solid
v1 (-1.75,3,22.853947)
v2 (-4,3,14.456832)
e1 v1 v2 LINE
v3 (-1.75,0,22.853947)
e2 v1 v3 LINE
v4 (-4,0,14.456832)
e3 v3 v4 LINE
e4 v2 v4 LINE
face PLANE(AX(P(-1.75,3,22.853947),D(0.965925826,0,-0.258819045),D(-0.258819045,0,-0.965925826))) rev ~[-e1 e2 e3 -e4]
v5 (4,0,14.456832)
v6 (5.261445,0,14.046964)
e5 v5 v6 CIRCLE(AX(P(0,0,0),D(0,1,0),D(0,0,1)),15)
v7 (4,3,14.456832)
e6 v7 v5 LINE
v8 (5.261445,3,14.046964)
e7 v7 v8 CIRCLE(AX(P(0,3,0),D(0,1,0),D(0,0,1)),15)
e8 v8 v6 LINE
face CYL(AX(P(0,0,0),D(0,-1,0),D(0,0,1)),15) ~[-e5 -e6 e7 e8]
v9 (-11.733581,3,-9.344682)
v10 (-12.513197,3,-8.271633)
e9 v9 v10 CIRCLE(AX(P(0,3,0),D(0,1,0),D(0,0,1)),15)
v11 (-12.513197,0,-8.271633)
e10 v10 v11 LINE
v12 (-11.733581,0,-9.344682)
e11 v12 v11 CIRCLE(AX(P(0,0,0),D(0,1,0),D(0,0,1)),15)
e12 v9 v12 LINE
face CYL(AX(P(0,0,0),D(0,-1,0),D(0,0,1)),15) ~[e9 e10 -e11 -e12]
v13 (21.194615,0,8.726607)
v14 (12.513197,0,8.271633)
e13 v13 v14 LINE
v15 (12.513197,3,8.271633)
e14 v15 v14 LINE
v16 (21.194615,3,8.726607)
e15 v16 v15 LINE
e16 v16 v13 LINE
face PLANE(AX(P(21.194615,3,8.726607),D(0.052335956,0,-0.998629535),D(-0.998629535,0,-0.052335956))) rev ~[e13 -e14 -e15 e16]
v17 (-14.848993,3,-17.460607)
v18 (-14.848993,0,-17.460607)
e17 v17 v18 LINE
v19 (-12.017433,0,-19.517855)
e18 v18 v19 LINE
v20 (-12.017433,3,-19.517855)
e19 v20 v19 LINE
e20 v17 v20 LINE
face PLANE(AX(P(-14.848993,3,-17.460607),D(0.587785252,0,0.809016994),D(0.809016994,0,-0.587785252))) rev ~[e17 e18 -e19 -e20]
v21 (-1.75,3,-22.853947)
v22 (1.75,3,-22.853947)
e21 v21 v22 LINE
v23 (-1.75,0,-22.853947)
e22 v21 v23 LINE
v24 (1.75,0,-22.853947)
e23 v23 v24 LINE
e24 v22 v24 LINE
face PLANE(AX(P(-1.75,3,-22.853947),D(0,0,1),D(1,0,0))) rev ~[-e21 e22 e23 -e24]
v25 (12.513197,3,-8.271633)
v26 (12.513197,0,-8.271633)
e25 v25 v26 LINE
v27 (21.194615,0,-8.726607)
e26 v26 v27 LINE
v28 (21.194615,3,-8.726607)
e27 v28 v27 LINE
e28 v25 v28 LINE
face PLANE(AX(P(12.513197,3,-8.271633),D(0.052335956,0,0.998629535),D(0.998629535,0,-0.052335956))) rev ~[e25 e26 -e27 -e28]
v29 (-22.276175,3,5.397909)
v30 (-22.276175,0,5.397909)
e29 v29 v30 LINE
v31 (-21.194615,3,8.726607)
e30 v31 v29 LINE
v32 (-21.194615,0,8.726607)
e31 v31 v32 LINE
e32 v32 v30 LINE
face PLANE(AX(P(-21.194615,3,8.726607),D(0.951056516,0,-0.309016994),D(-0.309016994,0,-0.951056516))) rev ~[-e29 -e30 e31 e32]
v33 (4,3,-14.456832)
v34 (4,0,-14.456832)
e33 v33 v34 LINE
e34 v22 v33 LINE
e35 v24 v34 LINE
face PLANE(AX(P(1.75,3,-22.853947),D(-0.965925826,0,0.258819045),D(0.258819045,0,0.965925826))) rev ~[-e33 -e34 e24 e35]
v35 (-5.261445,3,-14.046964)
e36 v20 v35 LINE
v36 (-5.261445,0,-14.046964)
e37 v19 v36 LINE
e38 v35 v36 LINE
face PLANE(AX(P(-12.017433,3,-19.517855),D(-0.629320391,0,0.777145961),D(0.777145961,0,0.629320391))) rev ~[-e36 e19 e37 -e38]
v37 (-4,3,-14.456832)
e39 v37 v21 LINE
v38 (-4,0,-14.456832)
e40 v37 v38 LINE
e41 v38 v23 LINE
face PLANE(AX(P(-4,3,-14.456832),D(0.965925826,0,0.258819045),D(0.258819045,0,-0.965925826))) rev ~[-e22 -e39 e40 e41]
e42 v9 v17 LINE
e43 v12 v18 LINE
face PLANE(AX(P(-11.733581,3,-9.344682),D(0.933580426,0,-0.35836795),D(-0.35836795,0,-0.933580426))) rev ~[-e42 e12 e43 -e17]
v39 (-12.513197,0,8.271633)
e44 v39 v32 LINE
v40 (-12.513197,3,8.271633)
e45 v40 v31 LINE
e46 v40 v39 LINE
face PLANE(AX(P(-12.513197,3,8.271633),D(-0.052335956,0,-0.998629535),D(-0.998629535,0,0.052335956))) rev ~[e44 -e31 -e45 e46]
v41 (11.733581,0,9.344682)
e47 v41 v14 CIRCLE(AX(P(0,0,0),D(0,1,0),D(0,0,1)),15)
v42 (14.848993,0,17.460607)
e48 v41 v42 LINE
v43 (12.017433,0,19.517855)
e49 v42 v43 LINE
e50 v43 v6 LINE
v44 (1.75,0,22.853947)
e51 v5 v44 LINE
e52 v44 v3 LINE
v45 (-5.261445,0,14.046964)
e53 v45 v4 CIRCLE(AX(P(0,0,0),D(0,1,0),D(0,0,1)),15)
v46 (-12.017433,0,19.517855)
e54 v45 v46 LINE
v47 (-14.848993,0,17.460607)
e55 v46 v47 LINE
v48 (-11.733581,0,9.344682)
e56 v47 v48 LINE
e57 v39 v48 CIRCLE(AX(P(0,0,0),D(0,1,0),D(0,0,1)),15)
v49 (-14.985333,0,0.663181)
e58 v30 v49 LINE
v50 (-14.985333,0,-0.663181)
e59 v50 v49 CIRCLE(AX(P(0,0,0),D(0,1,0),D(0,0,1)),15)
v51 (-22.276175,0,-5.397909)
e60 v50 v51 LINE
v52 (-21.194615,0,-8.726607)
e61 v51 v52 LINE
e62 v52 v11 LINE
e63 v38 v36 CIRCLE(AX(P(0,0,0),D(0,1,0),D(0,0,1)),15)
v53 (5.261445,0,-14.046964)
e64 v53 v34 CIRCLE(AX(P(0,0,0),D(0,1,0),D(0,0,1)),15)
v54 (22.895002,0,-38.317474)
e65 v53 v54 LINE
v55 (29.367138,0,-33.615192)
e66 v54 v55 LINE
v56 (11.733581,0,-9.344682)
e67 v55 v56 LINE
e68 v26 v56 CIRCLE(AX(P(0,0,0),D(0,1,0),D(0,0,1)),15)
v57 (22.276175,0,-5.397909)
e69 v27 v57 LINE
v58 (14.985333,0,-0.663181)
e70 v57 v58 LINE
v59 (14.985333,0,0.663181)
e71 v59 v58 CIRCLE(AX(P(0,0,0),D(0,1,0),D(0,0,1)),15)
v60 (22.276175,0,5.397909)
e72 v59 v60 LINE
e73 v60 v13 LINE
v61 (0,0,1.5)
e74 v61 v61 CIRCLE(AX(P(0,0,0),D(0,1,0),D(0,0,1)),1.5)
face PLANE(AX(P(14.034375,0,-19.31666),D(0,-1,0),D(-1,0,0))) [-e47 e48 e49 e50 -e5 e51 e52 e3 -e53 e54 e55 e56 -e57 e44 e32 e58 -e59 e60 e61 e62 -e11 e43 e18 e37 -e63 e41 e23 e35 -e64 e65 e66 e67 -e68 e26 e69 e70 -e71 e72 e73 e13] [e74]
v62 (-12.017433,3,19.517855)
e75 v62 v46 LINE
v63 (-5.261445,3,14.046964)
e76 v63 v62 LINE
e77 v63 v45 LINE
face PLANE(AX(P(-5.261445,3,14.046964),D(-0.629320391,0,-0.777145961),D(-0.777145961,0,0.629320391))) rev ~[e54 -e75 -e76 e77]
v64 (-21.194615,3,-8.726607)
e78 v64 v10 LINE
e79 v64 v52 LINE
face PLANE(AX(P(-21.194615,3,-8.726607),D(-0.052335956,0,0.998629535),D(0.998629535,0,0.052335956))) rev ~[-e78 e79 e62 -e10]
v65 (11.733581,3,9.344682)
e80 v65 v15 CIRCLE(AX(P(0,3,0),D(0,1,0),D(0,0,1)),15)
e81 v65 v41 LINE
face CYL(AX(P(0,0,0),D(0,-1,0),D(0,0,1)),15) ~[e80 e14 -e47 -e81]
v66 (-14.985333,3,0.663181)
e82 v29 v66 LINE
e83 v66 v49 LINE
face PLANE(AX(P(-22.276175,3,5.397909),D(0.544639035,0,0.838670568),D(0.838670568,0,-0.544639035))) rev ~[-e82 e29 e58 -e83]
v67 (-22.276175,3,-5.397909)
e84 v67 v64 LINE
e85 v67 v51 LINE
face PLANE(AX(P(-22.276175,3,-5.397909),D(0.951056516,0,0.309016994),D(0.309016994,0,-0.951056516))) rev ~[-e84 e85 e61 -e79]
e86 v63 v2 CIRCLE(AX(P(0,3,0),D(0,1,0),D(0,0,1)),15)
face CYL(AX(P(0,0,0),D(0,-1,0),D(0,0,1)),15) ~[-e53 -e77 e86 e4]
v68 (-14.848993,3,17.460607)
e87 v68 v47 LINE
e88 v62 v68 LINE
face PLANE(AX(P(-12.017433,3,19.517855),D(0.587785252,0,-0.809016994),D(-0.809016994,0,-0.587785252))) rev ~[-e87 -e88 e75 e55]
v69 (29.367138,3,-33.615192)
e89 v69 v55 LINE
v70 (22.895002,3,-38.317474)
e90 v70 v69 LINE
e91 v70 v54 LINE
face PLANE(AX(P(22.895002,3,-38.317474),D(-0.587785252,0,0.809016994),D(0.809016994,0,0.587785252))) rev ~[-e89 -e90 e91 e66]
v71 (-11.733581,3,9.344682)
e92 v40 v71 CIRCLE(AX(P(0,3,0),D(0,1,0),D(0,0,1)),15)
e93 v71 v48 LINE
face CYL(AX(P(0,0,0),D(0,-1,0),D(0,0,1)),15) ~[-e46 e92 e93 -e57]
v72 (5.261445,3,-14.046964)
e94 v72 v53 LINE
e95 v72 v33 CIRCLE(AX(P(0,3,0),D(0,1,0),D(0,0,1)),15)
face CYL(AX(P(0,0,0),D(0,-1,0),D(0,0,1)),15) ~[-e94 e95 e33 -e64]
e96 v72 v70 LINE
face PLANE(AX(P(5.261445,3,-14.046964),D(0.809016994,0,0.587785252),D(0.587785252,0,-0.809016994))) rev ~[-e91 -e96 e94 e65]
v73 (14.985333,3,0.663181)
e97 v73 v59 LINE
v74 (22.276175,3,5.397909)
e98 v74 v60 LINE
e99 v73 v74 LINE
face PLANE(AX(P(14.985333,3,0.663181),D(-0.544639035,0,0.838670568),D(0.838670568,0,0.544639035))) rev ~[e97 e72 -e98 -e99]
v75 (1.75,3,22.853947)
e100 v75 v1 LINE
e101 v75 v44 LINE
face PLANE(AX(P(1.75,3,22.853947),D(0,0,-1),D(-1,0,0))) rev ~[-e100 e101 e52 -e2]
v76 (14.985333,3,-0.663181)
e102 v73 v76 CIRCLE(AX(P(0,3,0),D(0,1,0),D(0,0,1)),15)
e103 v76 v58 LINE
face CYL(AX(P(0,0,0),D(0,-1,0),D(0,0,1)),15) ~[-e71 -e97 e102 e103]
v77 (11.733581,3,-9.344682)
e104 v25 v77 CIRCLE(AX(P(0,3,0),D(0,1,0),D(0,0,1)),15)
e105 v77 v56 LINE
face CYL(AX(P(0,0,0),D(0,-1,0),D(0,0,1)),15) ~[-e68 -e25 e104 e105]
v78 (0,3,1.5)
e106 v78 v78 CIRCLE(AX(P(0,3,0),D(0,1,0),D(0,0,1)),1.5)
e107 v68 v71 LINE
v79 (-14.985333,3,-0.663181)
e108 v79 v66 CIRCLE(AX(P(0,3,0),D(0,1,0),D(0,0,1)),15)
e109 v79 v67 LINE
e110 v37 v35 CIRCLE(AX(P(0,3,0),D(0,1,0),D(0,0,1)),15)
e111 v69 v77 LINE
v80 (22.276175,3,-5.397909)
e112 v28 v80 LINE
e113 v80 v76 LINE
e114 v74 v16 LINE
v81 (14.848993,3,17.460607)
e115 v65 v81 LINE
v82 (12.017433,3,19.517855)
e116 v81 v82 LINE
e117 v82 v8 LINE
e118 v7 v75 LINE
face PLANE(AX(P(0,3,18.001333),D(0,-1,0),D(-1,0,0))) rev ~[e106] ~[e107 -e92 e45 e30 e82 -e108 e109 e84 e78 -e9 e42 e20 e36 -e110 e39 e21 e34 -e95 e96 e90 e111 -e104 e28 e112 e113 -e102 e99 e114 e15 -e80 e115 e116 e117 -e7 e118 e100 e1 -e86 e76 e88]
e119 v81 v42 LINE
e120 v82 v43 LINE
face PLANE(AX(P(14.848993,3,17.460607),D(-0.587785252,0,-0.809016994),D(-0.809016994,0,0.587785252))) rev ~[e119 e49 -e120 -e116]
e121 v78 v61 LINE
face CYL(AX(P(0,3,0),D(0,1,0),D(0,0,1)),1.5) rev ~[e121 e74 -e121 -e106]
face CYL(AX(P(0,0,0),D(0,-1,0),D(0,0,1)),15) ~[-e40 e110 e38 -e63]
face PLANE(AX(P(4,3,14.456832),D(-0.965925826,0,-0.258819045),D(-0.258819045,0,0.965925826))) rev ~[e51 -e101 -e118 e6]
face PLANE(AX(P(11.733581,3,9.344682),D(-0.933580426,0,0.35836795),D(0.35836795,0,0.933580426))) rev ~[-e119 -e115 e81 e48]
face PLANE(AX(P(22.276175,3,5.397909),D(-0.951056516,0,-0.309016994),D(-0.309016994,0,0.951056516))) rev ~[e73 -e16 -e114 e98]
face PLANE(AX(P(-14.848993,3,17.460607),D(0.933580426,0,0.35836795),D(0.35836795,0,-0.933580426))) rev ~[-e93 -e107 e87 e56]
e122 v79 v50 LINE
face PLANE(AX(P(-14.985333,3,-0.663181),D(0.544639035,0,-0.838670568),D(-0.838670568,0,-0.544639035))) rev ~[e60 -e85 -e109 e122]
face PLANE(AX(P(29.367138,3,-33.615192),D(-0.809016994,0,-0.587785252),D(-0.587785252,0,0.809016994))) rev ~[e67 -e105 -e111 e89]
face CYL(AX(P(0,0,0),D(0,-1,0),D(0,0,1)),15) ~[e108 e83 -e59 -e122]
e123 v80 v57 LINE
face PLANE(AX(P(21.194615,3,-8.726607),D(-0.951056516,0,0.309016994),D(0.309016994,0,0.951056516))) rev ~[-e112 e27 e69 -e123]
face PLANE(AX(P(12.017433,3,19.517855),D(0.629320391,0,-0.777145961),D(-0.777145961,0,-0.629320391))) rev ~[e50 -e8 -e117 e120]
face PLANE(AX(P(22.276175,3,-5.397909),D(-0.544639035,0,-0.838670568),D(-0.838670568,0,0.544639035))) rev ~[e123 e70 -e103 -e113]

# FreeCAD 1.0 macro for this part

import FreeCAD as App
import Part
import Sketcher

V = App.Vector
Q = App.Units.Quantity

doc = App.newDocument("Part")
params = doc.addObject("Spreadsheet::Sheet", "Params")
for row, (alias, value) in enumerate([
    ("sketch1_diameter", "30 mm"),
    ("pad1_length", "3 mm"),
    ("sketch2_width", "8 mm"),
    ("sketch2_length", "8 mm"),
    ("sketch2_width2", "3.5 mm"),
    ("pad2_length", "3 mm"),
    ("sketch3_length", "15 mm"),
    ("sketch3_length2", "30 mm"),
    ("sketch3_length3", "8 mm"),
    ("pad3_length", "3 mm"),
    ("sketch4_diameter", "3 mm"),
    ("pocket1_length", "3 mm"),
], start=1):
    params.set(f"A{row}", alias)
    params.set(f"B{row}", "=" + value)
    params.setAlias(f"B{row}", alias)

body = doc.addObject("PartDesign::Body", "Body")

sketch1 = doc.addObject("Sketcher::SketchObject", "Sketch")
body.addObject(sketch1)
sketch1.AttachmentSupport = (doc.XZ_Plane, [""])
sketch1.MapMode = "FlatFace"
sketch1.addGeometry(Part.Circle(V(0, 0, 0), V(0, 0, 1), 15), False)
sketch1.addConstraint([
    Sketcher.Constraint("Coincident", 0, 3, -1, 1),
    Sketcher.Constraint("Diameter", 0, Q("30 mm")),
])
sketch1.setExpression("Constraints[1]", "Params.sketch1_diameter")
pad1 = doc.addObject("PartDesign::Pad", "Pad")
body.addObject(pad1)
pad1.Profile = sketch1
pad1.setExpression("Length", "Params.pad1_length")
pad1.Reversed = True

sketch2 = doc.addObject("Sketcher::SketchObject", "Sketch001")
body.addObject(sketch2)
sketch2.AttachmentSupport = (doc.XZ_Plane, [""])
sketch2.MapMode = "FlatFace"
sketch2.AttachmentOffset = App.Placement(V(0, 0, -3), App.Rotation())
sketch2.addGeometry([
    Part.LineSegment(V(-1.8, 22.9, 0), V(1.8, 22.9, 0)),
    Part.LineSegment(V(1.8, 22.9, 0), V(4, 14.5, 0)),
    Part.LineSegment(V(4, 14.5, 0), V(-4, 14.5, 0)),
    Part.LineSegment(V(-4, 14.5, 0), V(-1.8, 22.9, 0)),
    Part.LineSegment(V(-11.7, 9.3, 0), V(-14.8, 17.5, 0)),
    Part.LineSegment(V(-14.8, 17.5, 0), V(-12, 19.5, 0)),
    Part.LineSegment(V(-12, 19.5, 0), V(-5.3, 14, 0)),
    Part.LineSegment(V(-5.3, 14, 0), V(-11.7, 9.3, 0)),
    Part.LineSegment(V(-15, 0.7, 0), V(-22.3, 5.4, 0)),
    Part.LineSegment(V(-22.3, 5.4, 0), V(-21.2, 8.7, 0)),
    Part.LineSegment(V(-21.2, 8.7, 0), V(-12.5, 8.3, 0)),
    Part.LineSegment(V(-12.5, 8.3, 0), V(-15, 0.7, 0)),
    Part.LineSegment(V(-12.5, -8.3, 0), V(-21.2, -8.7, 0)),
    Part.LineSegment(V(-21.2, -8.7, 0), V(-22.3, -5.4, 0)),
    Part.LineSegment(V(-22.3, -5.4, 0), V(-15, -0.7, 0)),
    Part.LineSegment(V(-15, -0.7, 0), V(-12.5, -8.3, 0)),
    Part.LineSegment(V(-5.3, -14, 0), V(-12, -19.5, 0)),
    Part.LineSegment(V(-12, -19.5, 0), V(-14.8, -17.5, 0)),
    Part.LineSegment(V(-14.8, -17.5, 0), V(-11.7, -9.3, 0)),
    Part.LineSegment(V(-11.7, -9.3, 0), V(-5.3, -14, 0)),
    Part.LineSegment(V(4, -14.5, 0), V(1.8, -22.9, 0)),
    Part.LineSegment(V(1.8, -22.9, 0), V(-1.8, -22.9, 0)),
    Part.LineSegment(V(-1.8, -22.9, 0), V(-4, -14.5, 0)),
    Part.LineSegment(V(-4, -14.5, 0), V(4, -14.5, 0)),
    Part.LineSegment(V(11.7, -9.3, 0), V(14.8, -17.5, 0)),
    Part.LineSegment(V(14.8, -17.5, 0), V(12, -19.5, 0)),
    Part.LineSegment(V(12, -19.5, 0), V(5.3, -14, 0)),
    Part.LineSegment(V(5.3, -14, 0), V(11.7, -9.3, 0)),
    Part.LineSegment(V(15, -0.7, 0), V(22.3, -5.4, 0)),
    Part.LineSegment(V(22.3, -5.4, 0), V(21.2, -8.7, 0)),
    Part.LineSegment(V(21.2, -8.7, 0), V(12.5, -8.3, 0)),
    Part.LineSegment(V(12.5, -8.3, 0), V(15, -0.7, 0)),
    Part.LineSegment(V(12.5, 8.3, 0), V(21.2, 8.7, 0)),
    Part.LineSegment(V(21.2, 8.7, 0), V(22.3, 5.4, 0)),
    Part.LineSegment(V(22.3, 5.4, 0), V(15, 0.7, 0)),
    Part.LineSegment(V(15, 0.7, 0), V(12.5, 8.3, 0)),
    Part.LineSegment(V(5.3, 14, 0), V(12, 19.5, 0)),
    Part.LineSegment(V(12, 19.5, 0), V(14.8, 17.5, 0)),
    Part.LineSegment(V(14.8, 17.5, 0), V(11.7, 9.3, 0)),
    Part.LineSegment(V(11.7, 9.3, 0), V(5.3, 14, 0)),
], False)
sketch2.addConstraint([
    Sketcher.Constraint("Coincident", 0, 2, 1, 1),
    Sketcher.Constraint("Coincident", 1, 2, 2, 1),
    Sketcher.Constraint("Coincident", 2, 2, 3, 1),
    Sketcher.Constraint("Coincident", 3, 2, 0, 1),
    Sketcher.Constraint("Coincident", 4, 2, 5, 1),
    Sketcher.Constraint("Coincident", 5, 2, 6, 1),
    Sketcher.Constraint("Coincident", 6, 2, 7, 1),
    Sketcher.Constraint("Coincident", 7, 2, 4, 1),
    Sketcher.Constraint("Coincident", 8, 2, 9, 1),
    Sketcher.Constraint("Coincident", 9, 2, 10, 1),
    Sketcher.Constraint("Coincident", 10, 2, 11, 1),
    Sketcher.Constraint("Coincident", 11, 2, 8, 1),
    Sketcher.Constraint("Coincident", 12, 2, 13, 1),
    Sketcher.Constraint("Coincident", 13, 2, 14, 1),
    Sketcher.Constraint("Coincident", 14, 2, 15, 1),
    Sketcher.Constraint("Coincident", 15, 2, 12, 1),
    Sketcher.Constraint("Coincident", 16, 2, 17, 1),
    Sketcher.Constraint("Coincident", 17, 2, 18, 1),
    Sketcher.Constraint("Coincident", 18, 2, 19, 1),
    Sketcher.Constraint("Coincident", 19, 2, 16, 1),
    Sketcher.Constraint("Coincident", 20, 2, 21, 1),
    Sketcher.Constraint("Coincident", 21, 2, 22, 1),
    Sketcher.Constraint("Coincident", 22, 2, 23, 1),
    Sketcher.Constraint("Coincident", 23, 2, 20, 1),
    Sketcher.Constraint("Coincident", 24, 2, 25, 1),
    Sketcher.Constraint("Coincident", 25, 2, 26, 1),
    Sketcher.Constraint("Coincident", 26, 2, 27, 1),
    Sketcher.Constraint("Coincident", 27, 2, 24, 1),
    Sketcher.Constraint("Coincident", 28, 2, 29, 1),
    Sketcher.Constraint("Coincident", 29, 2, 30, 1),
    Sketcher.Constraint("Coincident", 30, 2, 31, 1),
    Sketcher.Constraint("Coincident", 31, 2, 28, 1),
    Sketcher.Constraint("Coincident", 32, 2, 33, 1),
    Sketcher.Constraint("Coincident", 33, 2, 34, 1),
    Sketcher.Constraint("Coincident", 34, 2, 35, 1),
    Sketcher.Constraint("Coincident", 35, 2, 32, 1),
    Sketcher.Constraint("Coincident", 36, 2, 37, 1),
    Sketcher.Constraint("Coincident", 37, 2, 38, 1),
    Sketcher.Constraint("Coincident", 38, 2, 39, 1),
    Sketcher.Constraint("Coincident", 39, 2, 36, 1),
    Sketcher.Constraint("Horizontal", 0),
    Sketcher.Constraint("Horizontal", 2),
    Sketcher.Constraint("Horizontal", 21),
    Sketcher.Constraint("Horizontal", 23),
    Sketcher.Constraint("Symmetric", 3, 2, 20, 2, -1, 1),
    Sketcher.Constraint("Symmetric", 1, 2, 22, 2, -1, 1),
    Sketcher.Constraint("Symmetric", 4, 2, 24, 2, -1, 1),
    Sketcher.Constraint("Symmetric", 5, 2, 25, 2, -1, 1),
    Sketcher.Constraint("Symmetric", 6, 2, 26, 2, -1, 1),
    Sketcher.Constraint("Symmetric", 7, 2, 27, 2, -1, 1),
    Sketcher.Constraint("Symmetric", 8, 2, 28, 2, -1, 1),
    Sketcher.Constraint("Symmetric", 9, 2, 29, 2, -1, 1),
    Sketcher.Constraint("Symmetric", 10, 2, 30, 2, -1, 1),
    Sketcher.Constraint("Symmetric", 11, 2, 31, 2, -1, 1),
    Sketcher.Constraint("Symmetric", 12, 2, 32, 2, -1, 1),
    Sketcher.Constraint("Symmetric", 13, 2, 33, 2, -1, 1),
    Sketcher.Constraint("Symmetric", 14, 2, 34, 2, -1, 1),
    Sketcher.Constraint("Symmetric", 15, 2, 35, 2, -1, 1),
    Sketcher.Constraint("Symmetric", 16, 2, 36, 2, -1, 1),
    Sketcher.Constraint("Symmetric", 17, 2, 37, 2, -1, 1),
    Sketcher.Constraint("Symmetric", 18, 2, 38, 2, -1, 1),
    Sketcher.Constraint("Symmetric", 19, 2, 39, 2, -1, 1),
    Sketcher.Constraint("Symmetric", 17, 2, 24, 2, -2),
    Sketcher.Constraint("Symmetric", 16, 2, 25, 2, -2),
    Sketcher.Constraint("Symmetric", 19, 2, 26, 2, -2),
    Sketcher.Constraint("Symmetric", 18, 2, 27, 2, -2),
    Sketcher.Constraint("Symmetric", 13, 2, 28, 2, -2),
    Sketcher.Constraint("Symmetric", 12, 2, 29, 2, -2),
    Sketcher.Constraint("Symmetric", 15, 2, 30, 2, -2),
    Sketcher.Constraint("Symmetric", 14, 2, 31, 2, -2),
    Sketcher.Constraint("Parallel", 5, 7),
    Sketcher.Constraint("Parallel", 9, 11),
    Sketcher.Constraint("Parallel", 3, 20),
    Sketcher.Constraint("Parallel", 1, 22),
    Sketcher.Constraint("Vertical", 0, 2, 20, 2),
    Sketcher.Constraint("Vertical", 2, 2, 22, 2),
    Sketcher.Constraint("Equal", 3, 4),
    Sketcher.Constraint("Equal", 4, 6),
    Sketcher.Constraint("Equal", 6, 8),
    Sketcher.Constraint("Equal", 5, 9),
    Sketcher.Constraint("Equal", 8, 10),
    Sketcher.Constraint("Equal", 7, 11),
    Sketcher.Constraint("DistanceX", 2, 2, 2, 1, Q("8 mm")),
    Sketcher.Constraint("Angle", 1, Q("-75 deg")),
    Sketcher.Constraint("Angle", 4, Q("111 deg")),
    Sketcher.Constraint("Angle", 5, Q("36 deg")),
    Sketcher.Constraint("Angle", 8, Q("147 deg")),
    Sketcher.Constraint("Distance", 7, Q("8 mm")),
    Sketcher.Constraint("DistanceX", 0, 1, 0, 2, Q("3.5 mm")),
    Sketcher.Constraint("DistanceY", 9, 2, 4, 2, Q("8.734 mm")),
    Sketcher.Constraint("DistanceX", 14, 2, 16, 2, Q("2.9679 mm")),
    Sketcher.Constraint("DistanceY", 35, 2, 1, 2, Q("6.185199 mm")),
    Sketcher.Constraint("DistanceX", 7, 2, -1, 1, Q("11.733581 mm")),
    Sketcher.Constraint("DistanceY", -1, 1, 8, 2, Q("5.397909 mm")),
])
sketch2.setExpression("Constraints[82]", "Params.sketch2_width")
sketch2.setExpression("Constraints[87]", "Params.sketch2_length")
sketch2.setExpression("Constraints[88]", "Params.sketch2_width2")
pad2 = doc.addObject("PartDesign::Pad", "Pad001")
body.addObject(pad2)
pad2.Profile = sketch2
pad2.setExpression("Length", "Params.pad2_length")

sketch3 = doc.addObject("Sketcher::SketchObject", "Sketch002")
body.addObject(sketch3)
sketch3.AttachmentSupport = (doc.XZ_Plane, [""])
sketch3.MapMode = "FlatFace"
sketch3.AttachmentOffset = App.Placement(V(0, 0, -3), App.Rotation())
sketch3.addGeometry([
    Part.LineSegment(V(5, -14, 0), V(0, 0, 0)),
    Part.LineSegment(V(0, 0, 0), V(12, -9, 0)),
    Part.LineSegment(V(12, -9, 0), V(29, -34, 0)),
    Part.LineSegment(V(29, -34, 0), V(23, -38, 0)),
    Part.LineSegment(V(23, -38, 0), V(5, -14, 0)),
], False)
sketch3.addConstraint([
    Sketcher.Constraint("Coincident", 0, 2, 1, 1),
    Sketcher.Constraint("Coincident", 1, 2, 2, 1),
    Sketcher.Constraint("Coincident", 2, 2, 3, 1),
    Sketcher.Constraint("Coincident", 3, 2, 4, 1),
    Sketcher.Constraint("Coincident", 4, 2, 0, 1),
    Sketcher.Constraint("Coincident", 0, 2, -1, 1),
    Sketcher.Constraint("Perpendicular", 2, 3),
    Sketcher.Constraint("Perpendicular", 3, 4),
    Sketcher.Constraint("Equal", 0, 1),
    Sketcher.Constraint("Equal", 2, 4),
    Sketcher.Constraint("Angle", 2, Q("-54 deg")),
    Sketcher.Constraint("Distance", 0, Q("15 mm")),
    Sketcher.Constraint("Distance", 2, Q("30 mm")),
    Sketcher.Constraint("Distance", 3, Q("8 mm")),
])
sketch3.setExpression("Constraints[11]", "Params.sketch3_length")
sketch3.setExpression("Constraints[12]", "Params.sketch3_length2")
sketch3.setExpression("Constraints[13]", "Params.sketch3_length3")
pad3 = doc.addObject("PartDesign::Pad", "Pad002")
body.addObject(pad3)
pad3.Profile = sketch3
pad3.setExpression("Length", "Params.pad3_length")

sketch4 = doc.addObject("Sketcher::SketchObject", "Sketch003")
body.addObject(sketch4)
sketch4.AttachmentSupport = (doc.XZ_Plane, [""])
sketch4.MapMode = "FlatFace"
sketch4.AttachmentOffset = App.Placement(V(0, 0, -3), App.Rotation())
sketch4.addGeometry(Part.Circle(V(0, 0, 0), V(0, 0, 1), 1.5), False)
sketch4.addConstraint([
    Sketcher.Constraint("Coincident", 0, 3, -1, 1),
    Sketcher.Constraint("Diameter", 0, Q("3 mm")),
])
sketch4.setExpression("Constraints[1]", "Params.sketch4_diameter")
pocket1 = doc.addObject("PartDesign::Pocket", "Pocket")
body.addObject(pocket1)
pocket1.Profile = sketch4
pocket1.setExpression("Length", "Params.pocket1_length")
pocket1.Reversed = True

doc.recompute()
